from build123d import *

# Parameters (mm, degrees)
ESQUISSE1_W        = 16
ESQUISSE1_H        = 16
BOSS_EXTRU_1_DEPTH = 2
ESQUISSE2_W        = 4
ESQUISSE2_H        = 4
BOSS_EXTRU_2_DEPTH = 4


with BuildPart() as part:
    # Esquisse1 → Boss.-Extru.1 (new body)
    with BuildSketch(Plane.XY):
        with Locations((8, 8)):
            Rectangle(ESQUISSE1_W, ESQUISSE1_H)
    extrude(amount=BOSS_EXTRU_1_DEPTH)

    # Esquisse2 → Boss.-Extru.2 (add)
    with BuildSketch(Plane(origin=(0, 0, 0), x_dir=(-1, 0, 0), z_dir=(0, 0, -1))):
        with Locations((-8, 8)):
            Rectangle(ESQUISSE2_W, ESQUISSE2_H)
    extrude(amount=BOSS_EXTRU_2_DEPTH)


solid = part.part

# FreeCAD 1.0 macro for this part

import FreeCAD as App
import Part
import Sketcher

V = App.Vector
Q = App.Units.Quantity


def add_polygon(sketch, points):
    """Adds a closed chain of lines whose ends are joined by coincident constraints."""
    first, n = sketch.GeometryCount, len(points)
    for a, b in zip(points, points[1:] + points[:1]):
        sketch.addGeometry(Part.LineSegment(App.Vector(*a, 0), App.Vector(*b, 0)), False)
    for i in range(n):
        sketch.addConstraint(Sketcher.Constraint("Coincident", first + i, 2, first + (i + 1) % n, 1))

doc = App.newDocument("Part")
body = doc.addObject("PartDesign::Body", "Body")

# Sketch on XY plane
sketch1 = body.newObject("Sketcher::SketchObject", "Sketch")
sketch1.AttachmentSupport = (doc.getObject("XY_Plane"), [""])
sketch1.MapMode = "FlatFace"
add_polygon(sketch1, [(0, 16), (0, 0), (16, 0), (16, 16)])  # lines 0-3
sketch1.addConstraint([
    Sketcher.Constraint("Vertical", 0),
    Sketcher.Constraint("Horizontal", 1),
    Sketcher.Constraint("Vertical", 2),
    Sketcher.Constraint("Horizontal", 3),
    Sketcher.Constraint("Coincident", 0, 2, -1, 1),
    Sketcher.Constraint("Equal", 3, 0),
    Sketcher.Constraint("DistanceX", 1, 1, 1, 2, Q("16 mm")),
])
pad1 = body.newObject("PartDesign::Pad", "Pad")
pad1.Profile = sketch1
pad1.Length = 2

# Sketch on XY plane
sketch2 = body.newObject("Sketcher::SketchObject", "Sketch001")
sketch2.AttachmentSupport = (doc.getObject("XY_Plane"), [""])
sketch2.MapMode = "FlatFace"
add_polygon(sketch2, [(10, 10), (10, 6), (6, 6), (6, 10)])  # lines 0-3
sketch2.addConstraint([
    Sketcher.Constraint("Vertical", 0),
    Sketcher.Constraint("Horizontal", 1),
    Sketcher.Constraint("Vertical", 2),
    Sketcher.Constraint("Horizontal", 3),
    Sketcher.Constraint("Equal", 3, 0),
    Sketcher.Constraint("DistanceX", 1, 2, 1, 1, Q("4 mm")),
    Sketcher.Constraint("DistanceX", -1, 1, 0, 2, Q("10 mm")),
    Sketcher.Constraint("DistanceY", -1, 1, 0, 2, Q("6 mm")),
])
pad2 = body.newObject("PartDesign::Pad", "Pad001")
pad2.Profile = sketch2
pad2.Length = 4
pad2.Reversed = True

doc.recompute()
